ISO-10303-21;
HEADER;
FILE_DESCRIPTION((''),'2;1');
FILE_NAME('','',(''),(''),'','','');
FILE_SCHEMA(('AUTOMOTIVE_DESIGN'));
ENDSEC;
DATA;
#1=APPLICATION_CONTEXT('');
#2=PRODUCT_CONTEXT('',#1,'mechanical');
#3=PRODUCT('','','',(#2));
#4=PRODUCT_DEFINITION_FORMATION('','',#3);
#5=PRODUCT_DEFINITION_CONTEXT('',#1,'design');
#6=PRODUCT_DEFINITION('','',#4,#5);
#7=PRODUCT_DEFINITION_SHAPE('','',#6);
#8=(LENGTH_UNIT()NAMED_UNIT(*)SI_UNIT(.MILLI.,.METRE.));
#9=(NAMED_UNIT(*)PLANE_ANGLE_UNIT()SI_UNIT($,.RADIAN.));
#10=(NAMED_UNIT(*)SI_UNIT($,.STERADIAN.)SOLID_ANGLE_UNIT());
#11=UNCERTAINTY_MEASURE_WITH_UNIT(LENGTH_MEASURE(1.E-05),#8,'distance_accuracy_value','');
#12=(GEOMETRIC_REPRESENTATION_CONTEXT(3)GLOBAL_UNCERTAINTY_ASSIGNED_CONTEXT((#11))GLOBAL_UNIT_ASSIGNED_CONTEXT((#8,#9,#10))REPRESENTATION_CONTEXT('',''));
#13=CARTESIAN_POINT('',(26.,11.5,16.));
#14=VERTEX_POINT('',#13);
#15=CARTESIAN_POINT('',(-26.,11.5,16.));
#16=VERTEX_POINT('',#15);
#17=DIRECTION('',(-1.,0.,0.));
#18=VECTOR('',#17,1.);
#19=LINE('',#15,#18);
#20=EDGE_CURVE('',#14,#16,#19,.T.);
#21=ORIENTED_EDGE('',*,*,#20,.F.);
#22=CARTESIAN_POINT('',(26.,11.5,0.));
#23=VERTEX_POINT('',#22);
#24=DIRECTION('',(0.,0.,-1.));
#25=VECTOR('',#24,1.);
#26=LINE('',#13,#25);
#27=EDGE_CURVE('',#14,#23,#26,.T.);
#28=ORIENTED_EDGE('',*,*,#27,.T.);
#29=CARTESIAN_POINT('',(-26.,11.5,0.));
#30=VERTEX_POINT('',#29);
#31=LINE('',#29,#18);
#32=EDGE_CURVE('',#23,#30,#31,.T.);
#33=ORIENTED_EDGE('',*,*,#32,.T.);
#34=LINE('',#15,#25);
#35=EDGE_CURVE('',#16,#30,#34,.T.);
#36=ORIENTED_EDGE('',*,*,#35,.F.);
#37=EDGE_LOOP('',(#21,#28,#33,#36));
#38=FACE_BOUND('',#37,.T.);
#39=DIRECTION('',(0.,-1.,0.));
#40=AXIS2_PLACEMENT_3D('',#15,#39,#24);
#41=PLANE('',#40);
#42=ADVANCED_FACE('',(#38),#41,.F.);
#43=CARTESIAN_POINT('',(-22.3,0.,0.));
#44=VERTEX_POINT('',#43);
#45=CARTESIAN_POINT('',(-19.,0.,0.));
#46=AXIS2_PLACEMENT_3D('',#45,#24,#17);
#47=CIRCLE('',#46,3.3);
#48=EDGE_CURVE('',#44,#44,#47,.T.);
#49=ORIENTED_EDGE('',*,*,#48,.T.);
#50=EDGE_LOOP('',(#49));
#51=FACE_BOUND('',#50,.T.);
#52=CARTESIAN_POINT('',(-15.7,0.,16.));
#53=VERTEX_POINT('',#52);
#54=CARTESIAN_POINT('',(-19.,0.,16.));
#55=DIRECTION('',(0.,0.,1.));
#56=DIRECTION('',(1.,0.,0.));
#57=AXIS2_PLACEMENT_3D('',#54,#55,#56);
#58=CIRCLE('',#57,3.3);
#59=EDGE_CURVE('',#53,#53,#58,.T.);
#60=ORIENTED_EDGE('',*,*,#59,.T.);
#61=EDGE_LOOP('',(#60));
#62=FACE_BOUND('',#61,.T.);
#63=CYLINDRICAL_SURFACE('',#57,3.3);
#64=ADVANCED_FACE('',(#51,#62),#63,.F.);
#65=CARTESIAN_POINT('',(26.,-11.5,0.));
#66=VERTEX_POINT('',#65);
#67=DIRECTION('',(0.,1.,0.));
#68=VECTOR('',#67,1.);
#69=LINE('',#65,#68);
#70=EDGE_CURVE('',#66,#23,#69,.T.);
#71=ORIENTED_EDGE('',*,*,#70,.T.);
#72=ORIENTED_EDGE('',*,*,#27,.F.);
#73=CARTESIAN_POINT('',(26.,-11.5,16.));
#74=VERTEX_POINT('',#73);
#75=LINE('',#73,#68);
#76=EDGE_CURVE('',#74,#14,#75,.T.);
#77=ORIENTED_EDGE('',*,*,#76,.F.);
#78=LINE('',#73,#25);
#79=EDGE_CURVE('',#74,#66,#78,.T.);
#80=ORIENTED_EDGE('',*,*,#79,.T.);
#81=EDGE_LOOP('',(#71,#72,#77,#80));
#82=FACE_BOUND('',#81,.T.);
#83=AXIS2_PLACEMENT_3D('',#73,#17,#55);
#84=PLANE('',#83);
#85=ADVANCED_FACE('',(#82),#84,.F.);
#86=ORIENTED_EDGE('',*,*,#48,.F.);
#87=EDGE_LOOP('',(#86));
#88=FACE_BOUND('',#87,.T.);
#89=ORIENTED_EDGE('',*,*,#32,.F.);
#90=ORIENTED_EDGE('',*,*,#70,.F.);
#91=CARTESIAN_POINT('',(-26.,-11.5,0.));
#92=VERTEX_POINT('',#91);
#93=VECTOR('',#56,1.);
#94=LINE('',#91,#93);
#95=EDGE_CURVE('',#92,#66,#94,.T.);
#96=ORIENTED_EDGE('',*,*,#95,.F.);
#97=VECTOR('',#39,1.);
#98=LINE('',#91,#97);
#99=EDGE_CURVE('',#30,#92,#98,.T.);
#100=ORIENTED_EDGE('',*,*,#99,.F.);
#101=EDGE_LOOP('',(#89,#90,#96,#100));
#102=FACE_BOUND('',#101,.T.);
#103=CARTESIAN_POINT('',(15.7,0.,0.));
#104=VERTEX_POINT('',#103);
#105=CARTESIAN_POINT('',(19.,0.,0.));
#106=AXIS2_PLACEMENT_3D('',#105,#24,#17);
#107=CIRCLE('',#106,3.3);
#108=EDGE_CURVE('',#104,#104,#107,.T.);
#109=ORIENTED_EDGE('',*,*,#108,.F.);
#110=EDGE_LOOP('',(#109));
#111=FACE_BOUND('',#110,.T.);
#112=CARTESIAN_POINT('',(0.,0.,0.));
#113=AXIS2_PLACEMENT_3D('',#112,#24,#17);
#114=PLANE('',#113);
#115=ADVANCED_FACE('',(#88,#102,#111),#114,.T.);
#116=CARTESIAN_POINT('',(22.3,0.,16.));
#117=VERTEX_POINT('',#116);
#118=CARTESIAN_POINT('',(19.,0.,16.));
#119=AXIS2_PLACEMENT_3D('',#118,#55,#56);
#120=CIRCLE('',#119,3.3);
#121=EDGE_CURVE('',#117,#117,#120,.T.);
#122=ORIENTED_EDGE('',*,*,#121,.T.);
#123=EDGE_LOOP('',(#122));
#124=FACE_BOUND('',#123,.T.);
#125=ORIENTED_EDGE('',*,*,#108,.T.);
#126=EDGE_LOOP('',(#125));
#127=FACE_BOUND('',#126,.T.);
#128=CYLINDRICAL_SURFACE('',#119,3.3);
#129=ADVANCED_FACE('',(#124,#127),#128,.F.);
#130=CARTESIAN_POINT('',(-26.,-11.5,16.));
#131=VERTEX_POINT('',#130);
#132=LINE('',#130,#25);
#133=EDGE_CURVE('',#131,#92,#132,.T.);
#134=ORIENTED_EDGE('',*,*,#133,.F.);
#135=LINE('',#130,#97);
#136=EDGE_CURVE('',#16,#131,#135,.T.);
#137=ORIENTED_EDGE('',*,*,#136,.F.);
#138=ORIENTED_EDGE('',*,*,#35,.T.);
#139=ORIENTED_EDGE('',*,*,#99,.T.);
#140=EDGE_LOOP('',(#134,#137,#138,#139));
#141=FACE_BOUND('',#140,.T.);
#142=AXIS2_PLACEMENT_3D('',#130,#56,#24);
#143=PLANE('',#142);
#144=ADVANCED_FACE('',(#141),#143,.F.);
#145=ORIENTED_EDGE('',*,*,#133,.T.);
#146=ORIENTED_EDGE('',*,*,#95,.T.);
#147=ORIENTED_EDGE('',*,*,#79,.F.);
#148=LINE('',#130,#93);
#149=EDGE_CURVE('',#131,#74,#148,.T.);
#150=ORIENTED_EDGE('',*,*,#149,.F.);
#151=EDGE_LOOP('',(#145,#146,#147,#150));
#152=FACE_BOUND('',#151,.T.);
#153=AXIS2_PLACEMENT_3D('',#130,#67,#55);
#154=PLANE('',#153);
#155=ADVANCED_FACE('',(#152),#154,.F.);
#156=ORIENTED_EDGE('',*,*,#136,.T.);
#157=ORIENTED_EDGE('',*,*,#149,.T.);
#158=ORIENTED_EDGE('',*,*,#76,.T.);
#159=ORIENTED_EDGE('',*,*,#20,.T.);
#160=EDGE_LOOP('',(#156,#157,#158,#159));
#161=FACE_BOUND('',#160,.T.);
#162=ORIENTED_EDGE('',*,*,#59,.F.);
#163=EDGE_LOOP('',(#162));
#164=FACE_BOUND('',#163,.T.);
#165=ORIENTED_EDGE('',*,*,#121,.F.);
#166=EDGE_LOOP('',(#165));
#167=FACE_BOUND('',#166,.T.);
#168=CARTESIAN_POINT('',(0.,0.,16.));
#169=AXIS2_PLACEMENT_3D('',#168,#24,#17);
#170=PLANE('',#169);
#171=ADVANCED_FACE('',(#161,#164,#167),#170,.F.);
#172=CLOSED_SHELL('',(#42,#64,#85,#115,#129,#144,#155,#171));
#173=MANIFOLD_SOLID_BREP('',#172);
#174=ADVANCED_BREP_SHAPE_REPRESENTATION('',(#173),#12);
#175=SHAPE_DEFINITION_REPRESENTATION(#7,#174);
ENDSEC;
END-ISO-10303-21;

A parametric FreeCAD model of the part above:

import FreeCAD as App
import Part
import Sketcher
from FreeCAD import Vector
Q = App.Units.Quantity

doc = App.newDocument("Part")
params = doc.addObject("Spreadsheet::Sheet", "Params")
for row, (alias, value) in enumerate([
    ("sketch1_width", "52 mm"),
    ("sketch1_height", "23 mm"),
    ("pad1_length", "16 mm"),
    ("sketch2_diameter", "6.6 mm"),
    ("hole_diameter", "6.6 mm"),
    ("hole_depth", "16 mm"),
], start=1):
    params.set(f"A{row}", alias)
    params.set(f"B{row}", "=" + value)
    params.setAlias(f"B{row}", alias)

body = doc.addObject("PartDesign::Body", "Body")

sketch1 = body.newObject("Sketcher::SketchObject", "Sketch")
sketch1.AttachmentSupport = (doc.getObject("XY_Plane"), [""])
sketch1.MapMode = "FlatFace"
sketch1.addGeometry([
    Part.LineSegment(Vector(-26, 12, 0), Vector(-26, -12, 0)),
    Part.LineSegment(Vector(-26, -12, 0), Vector(26, -12, 0)),
    Part.LineSegment(Vector(26, -12, 0), Vector(26, 12, 0)),
    Part.LineSegment(Vector(26, 12, 0), Vector(-26, 12, 0)),
], False)
sketch1.addConstraint([
    Sketcher.Constraint("Coincident", 0, 2, 1, 1),
    Sketcher.Constraint("Coincident", 1, 2, 2, 1),
    Sketcher.Constraint("Coincident", 2, 2, 3, 1),
    Sketcher.Constraint("Coincident", 3, 2, 0, 1),
    Sketcher.Constraint("Vertical", 0),
    Sketcher.Constraint("Horizontal", 1),
    Sketcher.Constraint("Vertical", 2),
    Sketcher.Constraint("Horizontal", 3),
    Sketcher.Constraint("Symmetric", 0, 2, 2, 2, -1, 1),
    Sketcher.Constraint("DistanceX", 1, 1, 1, 2, Q("52 mm")),
    Sketcher.Constraint("DistanceY", 0, 2, 0, 1, Q("23 mm")),
])
sketch1.setExpression("Constraints[9]", "Params.sketch1_width")
sketch1.setExpression("Constraints[10]", "Params.sketch1_height")
pad1 = body.newObject("PartDesign::Pad", "Pad")
pad1.Profile = sketch1
pad1.setExpression("Length", "Params.pad1_length")

sketch2 = body.newObject("Sketcher::SketchObject", "Sketch001")
sketch2.AttachmentSupport = (doc.getObject("XY_Plane"), [""])
sketch2.MapMode = "FlatFace"
sketch2.AttachmentOffset = App.Placement(Vector(0, 0, 16), App.Rotation())
sketch2.addGeometry([
    Part.Circle(Vector(-19, 0, 0), Vector(0, 0, 1), 3.3),
    Part.Circle(Vector(19, 0, 0), Vector(0, 0, 1), 3.3),
], False)
sketch2.addConstraint([
    Sketcher.Constraint("Equal", 0, 1),
    Sketcher.Constraint("Symmetric", 0, 3, 1, 3, -1, 1),
    Sketcher.Constraint("PointOnObject", 0, 3, -1),
    Sketcher.Constraint("Diameter", 0, Q("6.6 mm")),
    Sketcher.Constraint("DistanceX", 0, 3, -1, 1, Q("19 mm")),
])
sketch2.setExpression("Constraints[3]", "Params.sketch2_diameter")
doc.recompute()
hole = body.newObject("PartDesign::Hole", "Hole")
hole.Profile = sketch2
hole.ThreadType = "None"
hole.setExpression("Diameter", "Params.hole_diameter")
hole.DepthType = "Dimension"
hole.setExpression("Depth", "Params.hole_depth")
hole.DrillPoint = "Flat"

doc.recompute()
